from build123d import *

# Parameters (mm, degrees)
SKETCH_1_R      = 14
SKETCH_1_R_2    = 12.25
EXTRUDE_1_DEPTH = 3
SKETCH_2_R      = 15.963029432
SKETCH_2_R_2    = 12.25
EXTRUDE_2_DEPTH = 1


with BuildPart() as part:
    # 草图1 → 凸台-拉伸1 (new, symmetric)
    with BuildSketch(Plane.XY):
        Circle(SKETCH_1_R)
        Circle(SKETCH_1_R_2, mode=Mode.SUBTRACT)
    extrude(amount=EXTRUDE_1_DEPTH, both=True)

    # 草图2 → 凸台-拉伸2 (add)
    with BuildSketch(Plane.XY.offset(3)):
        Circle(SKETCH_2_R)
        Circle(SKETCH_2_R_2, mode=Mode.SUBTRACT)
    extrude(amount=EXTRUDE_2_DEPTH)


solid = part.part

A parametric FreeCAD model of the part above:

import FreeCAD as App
import Part
import Sketcher
Q = App.Units.Quantity

doc = App.newDocument("Part")
body = doc.addObject("PartDesign::Body", "Body")

sketch1 = doc.addObject("Sketcher::SketchObject", "Sketch")
body.addObject(sketch1)
sketch1.AttachmentSupport = (doc.XY_Plane, [""])
sketch1.MapMode = "FlatFace"
sketch1.addGeometry(Part.Circle(App.Vector(0, 0, 0), App.Vector(0, 0, 1), 14), False)
sketch1.addGeometry(Part.Circle(App.Vector(0, 0, 0), App.Vector(0, 0, 1), 12.25), False)
sketch1.addConstraint(Sketcher.Constraint("Coincident", 0, 3, -1, 1))
sketch1.addConstraint(Sketcher.Constraint("Coincident", 1, 3, -1, 1))
sketch1.addConstraint(Sketcher.Constraint("Diameter", 0, Q("28 mm")))
sketch1.addConstraint(Sketcher.Constraint("Diameter", 1, Q("24.5 mm")))
pad1 = doc.addObject("PartDesign::Pad", "Pad")
body.addObject(pad1)
pad1.Profile = sketch1
pad1.Length = 6
pad1.Midplane = True

sketch2 = doc.addObject("Sketcher::SketchObject", "Sketch001")
body.addObject(sketch2)
sketch2.AttachmentSupport = (doc.XY_Plane, [""])
sketch2.MapMode = "FlatFace"
sketch2.AttachmentOffset = App.Placement(App.Vector(0, 0, 3), App.Rotation())
sketch2.addGeometry(Part.Circle(App.Vector(0, 0, 0), App.Vector(0, 0, 1), 15.963029), False)
sketch2.addGeometry(Part.Circle(App.Vector(0, 0, 0), App.Vector(0, 0, 1), 12.25), False)
sketch2.addConstraint(Sketcher.Constraint("Coincident", 0, 3, -1, 1))
sketch2.addConstraint(Sketcher.Constraint("Coincident", 1, 3, -1, 1))
sketch2.addConstraint(Sketcher.Constraint("Diameter", 1, Q("24.5 mm")))
sketch2.addConstraint(Sketcher.Constraint("Diameter", 0, Q("31.926059 mm")))
pad2 = doc.addObject("PartDesign::Pad", "Pad001")
body.addObject(pad2)
pad2.Profile = sketch2
pad2.Length = 1

doc.recompute()
